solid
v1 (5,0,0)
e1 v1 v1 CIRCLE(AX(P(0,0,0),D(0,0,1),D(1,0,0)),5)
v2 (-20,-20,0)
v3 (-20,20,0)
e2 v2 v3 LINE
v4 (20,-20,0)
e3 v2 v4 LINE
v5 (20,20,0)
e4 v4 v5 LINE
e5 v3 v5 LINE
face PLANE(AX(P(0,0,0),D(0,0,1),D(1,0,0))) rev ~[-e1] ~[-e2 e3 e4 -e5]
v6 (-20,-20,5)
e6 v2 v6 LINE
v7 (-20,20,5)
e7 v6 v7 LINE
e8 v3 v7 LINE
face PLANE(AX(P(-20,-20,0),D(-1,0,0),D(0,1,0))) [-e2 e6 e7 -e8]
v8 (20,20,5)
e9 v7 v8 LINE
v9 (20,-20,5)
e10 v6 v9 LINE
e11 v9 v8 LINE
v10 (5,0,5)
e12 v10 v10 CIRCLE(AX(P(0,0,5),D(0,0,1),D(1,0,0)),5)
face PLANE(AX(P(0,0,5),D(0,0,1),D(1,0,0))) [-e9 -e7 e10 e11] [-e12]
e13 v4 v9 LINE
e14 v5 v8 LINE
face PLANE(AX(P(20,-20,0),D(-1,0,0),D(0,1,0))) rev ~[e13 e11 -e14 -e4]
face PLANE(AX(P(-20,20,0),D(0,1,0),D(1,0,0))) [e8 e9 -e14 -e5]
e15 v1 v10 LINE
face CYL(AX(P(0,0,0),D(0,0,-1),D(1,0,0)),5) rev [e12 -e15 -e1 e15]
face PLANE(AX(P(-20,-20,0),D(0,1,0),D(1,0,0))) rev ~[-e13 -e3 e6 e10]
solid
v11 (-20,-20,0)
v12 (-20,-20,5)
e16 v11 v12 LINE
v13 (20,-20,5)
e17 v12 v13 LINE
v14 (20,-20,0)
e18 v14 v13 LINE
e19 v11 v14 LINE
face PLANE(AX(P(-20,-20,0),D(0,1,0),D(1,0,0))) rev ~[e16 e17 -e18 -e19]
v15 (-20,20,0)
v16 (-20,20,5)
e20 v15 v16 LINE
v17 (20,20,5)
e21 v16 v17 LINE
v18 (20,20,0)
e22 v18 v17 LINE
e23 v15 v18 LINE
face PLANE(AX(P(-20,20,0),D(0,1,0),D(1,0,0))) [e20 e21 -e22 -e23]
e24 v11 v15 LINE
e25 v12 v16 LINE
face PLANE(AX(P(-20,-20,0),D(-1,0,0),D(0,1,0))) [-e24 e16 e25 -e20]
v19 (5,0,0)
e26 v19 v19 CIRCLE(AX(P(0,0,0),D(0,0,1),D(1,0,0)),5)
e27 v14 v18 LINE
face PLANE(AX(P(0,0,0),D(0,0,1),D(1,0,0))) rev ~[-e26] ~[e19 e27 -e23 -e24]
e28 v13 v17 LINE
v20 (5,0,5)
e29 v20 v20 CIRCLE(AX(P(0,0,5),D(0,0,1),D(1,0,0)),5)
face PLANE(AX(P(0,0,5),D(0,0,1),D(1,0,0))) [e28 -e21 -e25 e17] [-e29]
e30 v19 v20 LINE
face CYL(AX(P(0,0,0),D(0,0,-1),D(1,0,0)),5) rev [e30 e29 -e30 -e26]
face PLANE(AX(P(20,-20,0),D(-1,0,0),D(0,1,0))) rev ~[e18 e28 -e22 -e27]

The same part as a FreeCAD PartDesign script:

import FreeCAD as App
import Part
import Sketcher

V = App.Vector
Q = App.Units.Quantity

doc = App.newDocument("Part")
body = doc.addObject("PartDesign::Body", "Body")

# Sketch on XY plane
sketch1 = doc.addObject("Sketcher::SketchObject", "Sketch")
body.addObject(sketch1)
sketch1.AttachmentSupport = (doc.XY_Plane, [""])
sketch1.MapMode = "FlatFace"
sketch1.addGeometry(Part.LineSegment(V(-20, 20, 0), V(-20, -20, 0)), False)
sketch1.addGeometry(Part.LineSegment(V(-20, -20, 0), V(20, -20, 0)), False)
sketch1.addGeometry(Part.LineSegment(V(20, -20, 0), V(20, 20, 0)), False)
sketch1.addGeometry(Part.LineSegment(V(20, 20, 0), V(-20, 20, 0)), False)
sketch1.addGeometry(Part.Circle(V(0, 0, 0), V(0, 0, 1), 5), False)
sketch1.addConstraint(Sketcher.Constraint("Coincident", 0, 2, 1, 1))
sketch1.addConstraint(Sketcher.Constraint("Coincident", 1, 2, 2, 1))
sketch1.addConstraint(Sketcher.Constraint("Coincident", 2, 2, 3, 1))
sketch1.addConstraint(Sketcher.Constraint("Coincident", 3, 2, 0, 1))
sketch1.addConstraint(Sketcher.Constraint("Vertical", 0))
sketch1.addConstraint(Sketcher.Constraint("Horizontal", 1))
sketch1.addConstraint(Sketcher.Constraint("Vertical", 2))
sketch1.addConstraint(Sketcher.Constraint("Horizontal", 3))
sketch1.addConstraint(Sketcher.Constraint("Coincident", 4, 3, -1, 1))
sketch1.addConstraint(Sketcher.Constraint("Symmetric", 0, 2, 2, 2, -1, 1))
sketch1.addConstraint(Sketcher.Constraint("Equal", 3, 0))
sketch1.addConstraint(Sketcher.Constraint("Diameter", 4, Q("10 mm")))
sketch1.addConstraint(Sketcher.Constraint("DistanceX", 1, 1, 1, 2, Q("40 mm")))
pad1 = doc.addObject("PartDesign::Pad", "Pad")
body.addObject(pad1)
pad1.Profile = sketch1
pad1.Length = 5
body2 = doc.addObject("PartDesign::Body", "Body001")

# Sketch on XY plane
sketch2 = doc.addObject("Sketcher::SketchObject", "Sketch001")
body2.addObject(sketch2)
sketch2.AttachmentSupport = (doc.getObject("XY_Plane001"), [""])
sketch2.MapMode = "FlatFace"
sketch2.addGeometry(Part.LineSegment(V(-20, 20, 0), V(-20, -20, 0)), False)
sketch2.addGeometry(Part.LineSegment(V(-20, -20, 0), V(20, -20, 0)), False)
sketch2.addGeometry(Part.LineSegment(V(20, -20, 0), V(20, 20, 0)), False)
sketch2.addGeometry(Part.LineSegment(V(20, 20, 0), V(-20, 20, 0)), False)
sketch2.addGeometry(Part.Circle(V(0, 0, 0), V(0, 0, 1), 5), False)
sketch2.addConstraint(Sketcher.Constraint("Coincident", 0, 2, 1, 1))
sketch2.addConstraint(Sketcher.Constraint("Coincident", 1, 2, 2, 1))
sketch2.addConstraint(Sketcher.Constraint("Coincident", 2, 2, 3, 1))
sketch2.addConstraint(Sketcher.Constraint("Coincident", 3, 2, 0, 1))
sketch2.addConstraint(Sketcher.Constraint("Vertical", 0))
sketch2.addConstraint(Sketcher.Constraint("Horizontal", 1))
sketch2.addConstraint(Sketcher.Constraint("Vertical", 2))
sketch2.addConstraint(Sketcher.Constraint("Horizontal", 3))
sketch2.addConstraint(Sketcher.Constraint("Coincident", 4, 3, -1, 1))
sketch2.addConstraint(Sketcher.Constraint("Symmetric", 0, 2, 2, 2, -1, 1))
sketch2.addConstraint(Sketcher.Constraint("Equal", 3, 0))
sketch2.addConstraint(Sketcher.Constraint("Diameter", 4, Q("10 mm")))
sketch2.addConstraint(Sketcher.Constraint("DistanceX", 1, 1, 1, 2, Q("40 mm")))
pad2 = doc.addObject("PartDesign::Pad", "Pad001")
body2.addObject(pad2)
pad2.Profile = sketch2
pad2.Length = 5

doc.recompute()
